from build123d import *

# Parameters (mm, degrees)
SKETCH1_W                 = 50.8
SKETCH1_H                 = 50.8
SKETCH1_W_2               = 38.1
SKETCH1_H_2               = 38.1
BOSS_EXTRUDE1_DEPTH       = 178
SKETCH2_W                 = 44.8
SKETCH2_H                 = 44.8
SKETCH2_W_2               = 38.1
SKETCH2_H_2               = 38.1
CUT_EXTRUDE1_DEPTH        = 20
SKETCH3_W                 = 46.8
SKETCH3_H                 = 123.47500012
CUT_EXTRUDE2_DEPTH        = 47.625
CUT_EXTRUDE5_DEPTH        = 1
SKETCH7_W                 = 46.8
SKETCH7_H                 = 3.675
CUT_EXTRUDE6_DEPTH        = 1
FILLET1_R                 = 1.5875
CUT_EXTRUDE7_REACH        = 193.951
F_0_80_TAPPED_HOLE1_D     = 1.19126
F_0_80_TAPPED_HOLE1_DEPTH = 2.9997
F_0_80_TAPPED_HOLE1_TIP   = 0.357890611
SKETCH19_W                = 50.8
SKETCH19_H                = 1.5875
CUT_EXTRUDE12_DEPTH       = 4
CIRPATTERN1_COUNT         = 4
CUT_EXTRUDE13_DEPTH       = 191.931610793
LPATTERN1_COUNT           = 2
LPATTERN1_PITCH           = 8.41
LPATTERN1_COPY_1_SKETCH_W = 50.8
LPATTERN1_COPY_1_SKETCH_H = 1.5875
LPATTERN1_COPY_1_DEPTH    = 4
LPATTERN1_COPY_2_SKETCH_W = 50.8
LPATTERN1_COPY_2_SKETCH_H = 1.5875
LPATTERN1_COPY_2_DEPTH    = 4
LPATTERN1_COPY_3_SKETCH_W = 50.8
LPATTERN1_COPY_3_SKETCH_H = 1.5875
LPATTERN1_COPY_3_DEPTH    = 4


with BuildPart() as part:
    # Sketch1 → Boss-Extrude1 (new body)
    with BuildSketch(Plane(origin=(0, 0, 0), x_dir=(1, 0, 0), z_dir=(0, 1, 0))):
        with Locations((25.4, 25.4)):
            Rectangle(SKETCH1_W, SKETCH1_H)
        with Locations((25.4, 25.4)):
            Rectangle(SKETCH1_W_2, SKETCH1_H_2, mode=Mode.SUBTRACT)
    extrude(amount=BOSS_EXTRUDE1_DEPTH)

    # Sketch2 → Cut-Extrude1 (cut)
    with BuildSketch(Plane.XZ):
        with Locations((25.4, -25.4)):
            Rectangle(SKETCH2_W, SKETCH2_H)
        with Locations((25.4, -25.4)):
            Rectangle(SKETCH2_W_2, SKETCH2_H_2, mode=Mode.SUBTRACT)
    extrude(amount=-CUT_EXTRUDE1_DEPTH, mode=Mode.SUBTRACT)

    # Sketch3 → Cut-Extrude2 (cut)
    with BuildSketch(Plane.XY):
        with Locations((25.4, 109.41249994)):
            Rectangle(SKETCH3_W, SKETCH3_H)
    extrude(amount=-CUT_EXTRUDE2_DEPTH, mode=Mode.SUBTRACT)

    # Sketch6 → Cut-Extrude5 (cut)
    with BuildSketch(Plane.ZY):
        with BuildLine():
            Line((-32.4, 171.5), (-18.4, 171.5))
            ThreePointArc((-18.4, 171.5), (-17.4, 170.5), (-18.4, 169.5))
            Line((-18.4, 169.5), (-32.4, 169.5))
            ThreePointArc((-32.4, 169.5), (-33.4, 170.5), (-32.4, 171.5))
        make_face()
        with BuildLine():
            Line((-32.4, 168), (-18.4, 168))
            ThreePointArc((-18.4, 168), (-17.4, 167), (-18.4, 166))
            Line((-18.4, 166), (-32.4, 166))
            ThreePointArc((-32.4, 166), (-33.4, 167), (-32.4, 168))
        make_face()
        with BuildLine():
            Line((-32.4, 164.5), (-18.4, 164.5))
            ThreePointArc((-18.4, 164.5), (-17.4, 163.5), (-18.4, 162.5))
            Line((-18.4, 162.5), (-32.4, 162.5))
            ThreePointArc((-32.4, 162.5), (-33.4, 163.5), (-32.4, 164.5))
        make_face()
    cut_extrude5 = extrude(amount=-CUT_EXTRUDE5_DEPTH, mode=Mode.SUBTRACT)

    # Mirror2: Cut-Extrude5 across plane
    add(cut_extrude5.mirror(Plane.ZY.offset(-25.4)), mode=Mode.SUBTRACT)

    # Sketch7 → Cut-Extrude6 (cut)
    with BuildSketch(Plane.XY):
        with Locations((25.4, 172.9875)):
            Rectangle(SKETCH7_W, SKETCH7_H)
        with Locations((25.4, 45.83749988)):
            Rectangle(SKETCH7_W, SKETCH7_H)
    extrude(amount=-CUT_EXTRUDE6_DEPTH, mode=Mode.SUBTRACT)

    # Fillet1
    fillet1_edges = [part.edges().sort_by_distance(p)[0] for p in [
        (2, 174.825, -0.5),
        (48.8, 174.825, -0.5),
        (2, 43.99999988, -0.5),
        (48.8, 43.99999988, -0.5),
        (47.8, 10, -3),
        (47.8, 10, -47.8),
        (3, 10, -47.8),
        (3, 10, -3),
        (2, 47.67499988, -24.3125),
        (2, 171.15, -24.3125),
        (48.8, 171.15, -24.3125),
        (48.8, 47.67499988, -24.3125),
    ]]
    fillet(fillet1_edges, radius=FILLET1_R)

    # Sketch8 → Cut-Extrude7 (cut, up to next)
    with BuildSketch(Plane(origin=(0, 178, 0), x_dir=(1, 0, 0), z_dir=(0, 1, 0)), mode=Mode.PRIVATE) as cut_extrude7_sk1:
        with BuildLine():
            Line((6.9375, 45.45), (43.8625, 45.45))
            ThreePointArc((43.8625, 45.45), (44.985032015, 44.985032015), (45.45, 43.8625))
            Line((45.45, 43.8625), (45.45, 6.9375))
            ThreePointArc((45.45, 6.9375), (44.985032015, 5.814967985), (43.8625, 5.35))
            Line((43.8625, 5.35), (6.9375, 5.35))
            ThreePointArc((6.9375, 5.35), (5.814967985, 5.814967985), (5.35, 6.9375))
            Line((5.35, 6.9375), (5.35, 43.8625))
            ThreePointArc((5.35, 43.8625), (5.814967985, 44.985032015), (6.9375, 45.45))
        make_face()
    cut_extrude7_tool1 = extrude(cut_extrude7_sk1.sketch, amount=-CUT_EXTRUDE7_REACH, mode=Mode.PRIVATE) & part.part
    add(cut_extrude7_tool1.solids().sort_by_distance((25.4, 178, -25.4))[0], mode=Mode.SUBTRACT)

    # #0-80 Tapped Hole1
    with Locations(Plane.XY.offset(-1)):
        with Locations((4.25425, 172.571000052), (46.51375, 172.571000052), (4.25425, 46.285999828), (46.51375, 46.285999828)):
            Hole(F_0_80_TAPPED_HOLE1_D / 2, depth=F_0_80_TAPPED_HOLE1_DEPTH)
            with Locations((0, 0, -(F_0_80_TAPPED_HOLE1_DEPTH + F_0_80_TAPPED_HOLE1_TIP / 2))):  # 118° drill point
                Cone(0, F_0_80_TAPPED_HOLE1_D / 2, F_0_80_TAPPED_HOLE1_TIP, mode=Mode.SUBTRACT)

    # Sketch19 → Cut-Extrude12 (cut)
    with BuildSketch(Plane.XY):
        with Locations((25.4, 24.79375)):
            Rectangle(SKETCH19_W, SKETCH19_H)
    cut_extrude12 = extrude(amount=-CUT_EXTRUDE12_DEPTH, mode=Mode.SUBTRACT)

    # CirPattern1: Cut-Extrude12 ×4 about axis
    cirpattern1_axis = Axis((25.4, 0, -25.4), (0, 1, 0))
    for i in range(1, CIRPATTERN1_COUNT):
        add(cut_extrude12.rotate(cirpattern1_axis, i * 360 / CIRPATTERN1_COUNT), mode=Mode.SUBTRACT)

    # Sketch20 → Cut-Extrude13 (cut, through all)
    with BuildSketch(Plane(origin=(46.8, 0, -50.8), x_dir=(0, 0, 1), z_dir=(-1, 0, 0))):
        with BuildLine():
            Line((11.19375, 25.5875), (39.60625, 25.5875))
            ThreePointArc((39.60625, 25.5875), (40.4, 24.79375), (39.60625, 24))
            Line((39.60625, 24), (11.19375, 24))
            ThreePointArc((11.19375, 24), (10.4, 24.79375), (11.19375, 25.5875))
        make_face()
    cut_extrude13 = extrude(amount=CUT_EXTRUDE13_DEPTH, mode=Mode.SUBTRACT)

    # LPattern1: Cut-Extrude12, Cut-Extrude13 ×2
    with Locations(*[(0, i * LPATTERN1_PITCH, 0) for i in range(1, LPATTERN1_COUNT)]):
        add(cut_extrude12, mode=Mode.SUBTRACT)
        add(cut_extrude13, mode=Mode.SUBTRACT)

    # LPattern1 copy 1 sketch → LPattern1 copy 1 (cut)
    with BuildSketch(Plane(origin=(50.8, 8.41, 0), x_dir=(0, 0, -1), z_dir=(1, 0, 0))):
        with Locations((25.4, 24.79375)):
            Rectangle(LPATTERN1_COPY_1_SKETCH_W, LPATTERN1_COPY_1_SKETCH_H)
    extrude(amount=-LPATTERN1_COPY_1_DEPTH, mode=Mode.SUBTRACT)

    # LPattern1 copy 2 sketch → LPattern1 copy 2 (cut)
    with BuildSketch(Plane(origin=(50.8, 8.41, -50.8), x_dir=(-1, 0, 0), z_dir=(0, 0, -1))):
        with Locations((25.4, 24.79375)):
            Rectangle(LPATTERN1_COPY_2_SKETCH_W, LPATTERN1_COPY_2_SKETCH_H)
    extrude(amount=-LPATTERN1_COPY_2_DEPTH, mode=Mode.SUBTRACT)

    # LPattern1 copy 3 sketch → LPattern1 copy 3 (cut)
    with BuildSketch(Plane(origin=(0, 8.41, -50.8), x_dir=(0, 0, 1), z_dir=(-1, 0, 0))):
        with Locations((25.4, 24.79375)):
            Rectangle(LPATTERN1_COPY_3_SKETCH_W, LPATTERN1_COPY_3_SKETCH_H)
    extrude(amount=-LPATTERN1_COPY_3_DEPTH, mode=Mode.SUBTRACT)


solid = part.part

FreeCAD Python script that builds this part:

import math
import FreeCAD as App
import Part
import Sketcher

V = App.Vector
Q = App.Units.Quantity


def edges_at(feature, points):
    """Names of the edges that pass closest to the given points."""
    edges = feature.Shape.Edges
    near = lambda p: min(range(len(edges)), key=lambda i: edges[i].distToShape(Part.Vertex(*p))[0])
    return sorted({f"Edge{near(p) + 1}" for p in points})


def add_polygon(sketch, points):
    """Adds a closed chain of lines whose ends are joined by coincident constraints."""
    first, n = sketch.GeometryCount, len(points)
    for a, b in zip(points, points[1:] + points[:1]):
        sketch.addGeometry(Part.LineSegment(App.Vector(*a, 0), App.Vector(*b, 0)), False)
    for i in range(n):
        sketch.addConstraint(Sketcher.Constraint("Coincident", first + i, 2, first + (i + 1) % n, 1))

doc = App.newDocument("Part")
body = doc.addObject("PartDesign::Body", "Body")

# Sketch on XZ plane
sketch1 = body.newObject("Sketcher::SketchObject", "Sketch")
sketch1.AttachmentSupport = (doc.getObject("XZ_Plane"), [""])
sketch1.MapMode = "FlatFace"
add_polygon(sketch1, [(0, -51), (0, 0), (51, 0), (51, -51)])  # lines 0-3
add_polygon(sketch1, [(44, -6), (6, -6), (6, -44), (44, -44)])  # lines 4-7
sketch1.addConstraint([
    Sketcher.Constraint("Vertical", 0),
    Sketcher.Constraint("Horizontal", 1),
    Sketcher.Constraint("Vertical", 2),
    Sketcher.Constraint("Horizontal", 3),
    Sketcher.Constraint("Horizontal", 4),
    Sketcher.Constraint("Vertical", 5),
    Sketcher.Constraint("Horizontal", 6),
    Sketcher.Constraint("Vertical", 7),
    Sketcher.Constraint("Coincident", 0, 2, -1, 1),
    Sketcher.Constraint("Equal", 3, 0),
    Sketcher.Constraint("Equal", 6, 5),
    Sketcher.Constraint("DistanceX", 1, 1, 1, 2, Q("50.8 mm")),
    Sketcher.Constraint("DistanceX", 4, 2, 4, 1, Q("38.1 mm")),
    Sketcher.Constraint("DistanceX", -1, 1, 4, 2, Q("6.35 mm")),
    Sketcher.Constraint("DistanceY", 4, 2, -1, 1, Q("6.35 mm")),
])
pad1 = body.newObject("PartDesign::Pad", "Pad")
pad1.Profile = sketch1
pad1.Length = 178
pad1.Reversed = True

# Sketch on XZ plane
sketch2 = body.newObject("Sketcher::SketchObject", "Sketch001")
sketch2.AttachmentSupport = (doc.getObject("XZ_Plane"), [""])
sketch2.MapMode = "FlatFace"
add_polygon(sketch2, [(3, -3), (3, -48), (48, -48), (48, -3)])  # lines 0-3
add_polygon(sketch2, [(44, -44), (6, -44), (6, -6), (44, -6)])  # lines 4-7
sketch2.addConstraint([
    Sketcher.Constraint("Vertical", 0),
    Sketcher.Constraint("Horizontal", 1),
    Sketcher.Constraint("Vertical", 2),
    Sketcher.Constraint("Horizontal", 3),
    Sketcher.Constraint("Horizontal", 4),
    Sketcher.Constraint("Vertical", 5),
    Sketcher.Constraint("Horizontal", 6),
    Sketcher.Constraint("Vertical", 7),
    Sketcher.Constraint("Equal", 3, 0),
    Sketcher.Constraint("Equal", 6, 5),
    Sketcher.Constraint("DistanceX", 1, 1, 1, 2, Q("44.8 mm")),
    Sketcher.Constraint("DistanceX", 4, 2, 4, 1, Q("38.1 mm")),
    Sketcher.Constraint("DistanceX", -1, 1, 0, 2, Q("3 mm")),
    Sketcher.Constraint("DistanceY", 2, 2, -1, 1, Q("3 mm")),
    Sketcher.Constraint("DistanceX", -1, 1, 4, 2, Q("6.35 mm")),
    Sketcher.Constraint("DistanceY", 4, 2, -1, 1, Q("44.45 mm")),
])
pocket1 = body.newObject("PartDesign::Pocket", "Pocket")
pocket1.Profile = sketch2
pocket1.Length = 20

# Sketch on XY plane
sketch3 = body.newObject("Sketcher::SketchObject", "Sketch002")
sketch3.AttachmentSupport = (doc.getObject("XY_Plane"), [""])
sketch3.MapMode = "FlatFace"
add_polygon(sketch3, [(2, 171), (2, 48), (49, 48), (49, 171)])  # lines 0-3
sketch3.addConstraint([
    Sketcher.Constraint("Vertical", 0),
    Sketcher.Constraint("Horizontal", 1),
    Sketcher.Constraint("Vertical", 2),
    Sketcher.Constraint("Horizontal", 3),
    Sketcher.Constraint("DistanceX", 1, 1, 1, 2, Q("46.8 mm")),
    Sketcher.Constraint("DistanceX", -1, 1, 0, 2, Q("2 mm")),
    Sketcher.Constraint("DistanceY", 0, 2, 0, 1, Q("123.475 mm")),
    Sketcher.Constraint("DistanceY", -1, 1, 2, 2, Q("171.15 mm")),
])
pocket2 = body.newObject("PartDesign::Pocket", "Pocket001")
pocket2.Profile = sketch3
pocket2.Length = 47.625

# Sketch on YZ plane
sketch4 = body.newObject("Sketcher::SketchObject", "Sketch003")
sketch4.AttachmentSupport = (doc.getObject("YZ_Plane"), [""])
sketch4.MapMode = "FlatFace"
sketch4.addGeometry([
    Part.LineSegment(V(171.5, -18.4, 0), V(171.5, -32.4, 0)),  # 0
    Part.ArcOfCircle(Part.Circle(V(170.5, -32.4, 0), V(0, 0, 1), 1), math.radians(180), math.radians(360)),  # 1
    Part.LineSegment(V(169.5, -32.4, 0), V(169.5, -18.4, 0)),  # 2
    Part.ArcOfCircle(Part.Circle(V(170.5, -18.4, 0), V(0, 0, 1), 1), math.radians(0), math.radians(180)),  # 3
    Part.LineSegment(V(168, -18.4, 0), V(168, -32.4, 0)),  # 4
    Part.ArcOfCircle(Part.Circle(V(167, -32.4, 0), V(0, 0, 1), 1), math.radians(180), math.radians(360)),  # 5
    Part.LineSegment(V(166, -32.4, 0), V(166, -18.4, 0)),  # 6
    Part.ArcOfCircle(Part.Circle(V(167, -18.4, 0), V(0, 0, 1), 1), math.radians(0), math.radians(180)),  # 7
    Part.LineSegment(V(164.5, -18.4, 0), V(164.5, -32.4, 0)),  # 8
    Part.ArcOfCircle(Part.Circle(V(163.5, -32.4, 0), V(0, 0, 1), 1), math.radians(180), math.radians(360)),  # 9
    Part.LineSegment(V(162.5, -32.4, 0), V(162.5, -18.4, 0)),  # 10
    Part.ArcOfCircle(Part.Circle(V(163.5, -18.4, 0), V(0, 0, 1), 1), math.radians(0), math.radians(180)),  # 11
], False)
sketch4.addConstraint([
    Sketcher.Constraint("Tangent", 0, 2, 1, 2),
    Sketcher.Constraint("Tangent", 1, 1, 2, 1),
    Sketcher.Constraint("Tangent", 2, 2, 3, 2),
    Sketcher.Constraint("Tangent", 3, 1, 0, 1),
    Sketcher.Constraint("Tangent", 4, 2, 5, 2),
    Sketcher.Constraint("Tangent", 5, 1, 6, 1),
    Sketcher.Constraint("Tangent", 6, 2, 7, 2),
    Sketcher.Constraint("Tangent", 7, 1, 4, 1),
    Sketcher.Constraint("Tangent", 8, 2, 9, 2),
    Sketcher.Constraint("Tangent", 9, 1, 10, 1),
    Sketcher.Constraint("Tangent", 10, 2, 11, 2),
    Sketcher.Constraint("Tangent", 11, 1, 8, 1),
    Sketcher.Constraint("Vertical", 0),
    Sketcher.Constraint("Vertical", 2),
    Sketcher.Constraint("Vertical", 4),
    Sketcher.Constraint("Vertical", 6),
    Sketcher.Constraint("Vertical", 8),
    Sketcher.Constraint("Vertical", 10),
    Sketcher.Constraint("Equal", 3, 5),
    Sketcher.Constraint("Equal", 7, 9),
    Sketcher.Constraint("Horizontal", 1, 3, 5, 3),
    Sketcher.Constraint("Horizontal", 3, 3, 7, 3),
    Sketcher.Constraint("Horizontal", 5, 3, 9, 3),
    Sketcher.Constraint("Horizontal", 7, 3, 11, 3),
    Sketcher.Constraint("Radius", 1, Q("1 mm")),
    Sketcher.Constraint("DistanceY", 0, 2, 0, 1, Q("14 mm")),
    Sketcher.Constraint("DistanceX", -1, 1, 5, 3, Q("167 mm")),
    Sketcher.Constraint("DistanceX", 9, 3, 1, 3, Q("7 mm")),
    Sketcher.Constraint("DistanceX", -1, 1, 1, 3, Q("170.5 mm")),
    Sketcher.Constraint("DistanceY", 1, 3, -1, 1, Q("32.4 mm")),
])
pocket3 = body.newObject("PartDesign::Pocket", "Pocket002")
pocket3.Profile = sketch4
pocket3.Length = 1
pocket3.Reversed = True
doc.recompute()

datumplane = body.newObject("PartDesign::Plane", "DatumPlane")
datumplane.AttachmentSupport = (doc.getObject("YZ_Plane"), [""])
datumplane.MapMode = "FlatFace"
datumplane.AttachmentOffset = App.Placement(V(0, 0, 25.4), App.Rotation())
mirrored = body.newObject("PartDesign::Mirrored", "Mirrored")
mirrored.Originals = [pocket3]
mirrored.MirrorPlane = (datumplane, [""])
body.Tip = mirrored

# Sketch on XY plane
sketch5 = body.newObject("Sketcher::SketchObject", "Sketch004")
sketch5.AttachmentSupport = (doc.getObject("XY_Plane"), [""])
sketch5.MapMode = "FlatFace"
add_polygon(sketch5, [(2, 174.8), (2, 171.2), (48.8, 171.2), (48.8, 174.8)])  # lines 0-3
add_polygon(sketch5, [(2, 47.7), (2, 44), (48.8, 44), (48.8, 47.7)])  # lines 4-7
sketch5.addConstraint([
    Sketcher.Constraint("Vertical", 0),
    Sketcher.Constraint("Horizontal", 1),
    Sketcher.Constraint("Vertical", 2),
    Sketcher.Constraint("Horizontal", 3),
    Sketcher.Constraint("Vertical", 4),
    Sketcher.Constraint("Horizontal", 5),
    Sketcher.Constraint("Vertical", 6),
    Sketcher.Constraint("Horizontal", 7),
    Sketcher.Constraint("Vertical", 3, 2, 4, 2),
    Sketcher.Constraint("Vertical", 2, 2, 5, 2),
    Sketcher.Constraint("Equal", 2, 4),
    Sketcher.Constraint("DistanceX", 1, 1, 1, 2, Q("46.8 mm")),
    Sketcher.Constraint("DistanceX", -1, 1, 0, 2, Q("2 mm")),
    Sketcher.Constraint("DistanceY", -1, 1, 4, 2, Q("44 mm")),
    Sketcher.Constraint("DistanceY", 0, 2, 0, 1, Q("3.675 mm")),
    Sketcher.Constraint("DistanceY", -1, 1, 0, 2, Q("171.15 mm")),
])
pocket4 = body.newObject("PartDesign::Pocket", "Pocket003")
pocket4.Profile = sketch5
pocket4.Length = 1
doc.recompute()

fillet = body.newObject("PartDesign::Fillet", "Fillet")
fillet.Base = (pocket4, edges_at(pocket4, [
    (2, 174.825, -0.5),
    (48.8, 174.825, -0.5),
    (2, 44, -0.5),
    (48.8, 44, -0.5),
    (47.8, 10, -3),
    (47.8, 10, -47.8),
    (3, 10, -47.8),
    (3, 10, -3),
    (2, 47.675, -24.312),
    (2, 171.15, -24.312),
    (48.8, 171.15, -24.312),
    (48.8, 47.675, -24.312),
]))
fillet.Radius = 1.5875

# Sketch on XZ plane
sketch6 = body.newObject("Sketcher::SketchObject", "Sketch005")
sketch6.AttachmentSupport = (doc.getObject("XZ_Plane"), [""])
sketch6.MapMode = "FlatFace"
sketch6.AttachmentOffset = App.Placement(V(0, 0, -178), App.Rotation())
sketch6.addGeometry([
    Part.LineSegment(V(43.9, -45.5, 0), V(6.9, -45.5, 0)),  # 0
    Part.ArcOfCircle(Part.Circle(V(6.9, -43.9, 0), V(0, 0, 1), 1.6), math.radians(180), math.radians(270)),  # 1
    Part.LineSegment(V(5.3, -43.9, 0), V(5.3, -6.9, 0)),  # 2
    Part.ArcOfCircle(Part.Circle(V(6.9, -6.9, 0), V(0, 0, 1), 1.6), math.radians(90), math.radians(180)),  # 3
    Part.LineSegment(V(6.9, -5.3, 0), V(43.9, -5.3, 0)),  # 4
    Part.ArcOfCircle(Part.Circle(V(43.9, -6.9, 0), V(0, 0, 1), 1.6), math.radians(0), math.radians(90)),  # 5
    Part.LineSegment(V(45.5, -6.9, 0), V(45.5, -43.9, 0)),  # 6
    Part.ArcOfCircle(Part.Circle(V(43.9, -43.9, 0), V(0, 0, 1), 1.6), math.radians(-90), math.radians(0)),  # 7
], False)
sketch6.addConstraint([
    Sketcher.Constraint("Tangent", 0, 2, 1, 2),
    Sketcher.Constraint("Tangent", 1, 1, 2, 1),
    Sketcher.Constraint("Tangent", 2, 2, 3, 2),
    Sketcher.Constraint("Tangent", 3, 1, 4, 1),
    Sketcher.Constraint("Tangent", 4, 2, 5, 2),
    Sketcher.Constraint("Tangent", 5, 1, 6, 1),
    Sketcher.Constraint("Tangent", 6, 2, 7, 2),
    Sketcher.Constraint("Tangent", 7, 1, 0, 1),
    Sketcher.Constraint("Horizontal", 0),
    Sketcher.Constraint("Vertical", 2),
    Sketcher.Constraint("Horizontal", 4),
    Sketcher.Constraint("Vertical", 6),
    Sketcher.Constraint("Equal", 1, 3),
    Sketcher.Constraint("Equal", 3, 5),
    Sketcher.Constraint("Equal", 5, 7),
    Sketcher.Constraint("Equal", 4, 2),
    Sketcher.Constraint("Radius", 1, Q("1.5875 mm")),
    Sketcher.Constraint("DistanceX", 0, 2, 0, 1, Q("36.925 mm")),
    Sketcher.Constraint("DistanceY", 0, 2, -1, 1, Q("45.45 mm")),
    Sketcher.Constraint("DistanceX", -1, 1, 1, 1, Q("5.35 mm")),
])
pocket5 = body.newObject("PartDesign::Pocket", "Pocket004")
pocket5.Profile = sketch6
pocket5.Length = 6.85
pocket5.Reversed = True

# Sketch on XY plane
sketch7 = body.newObject("Sketcher::SketchObject", "Sketch006")
sketch7.AttachmentSupport = (doc.getObject("XY_Plane"), [""])
sketch7.MapMode = "FlatFace"
sketch7.AttachmentOffset = App.Placement(V(0, 0, -1), App.Rotation())
sketch7.addGeometry([
    Part.Circle(V(4.3, 172.6, 0), V(0, 0, 1), 0.6),
    Part.Circle(V(46.5, 172.6, 0), V(0, 0, 1), 0.6),
    Part.Circle(V(4.3, 46.3, 0), V(0, 0, 1), 0.6),
    Part.Circle(V(46.5, 46.3, 0), V(0, 0, 1), 0.6),
], False)
sketch7.addConstraint([
    Sketcher.Constraint("Equal", 0, 1),
    Sketcher.Constraint("Equal", 1, 2),
    Sketcher.Constraint("Equal", 2, 3),
    Sketcher.Constraint("Horizontal", 0, 3, 1, 3),
    Sketcher.Constraint("Horizontal", 2, 3, 3, 3),
    Sketcher.Constraint("Vertical", 0, 3, 2, 3),
    Sketcher.Constraint("Vertical", 1, 3, 3, 3),
    Sketcher.Constraint("Diameter", 0, Q("1.19126 mm")),
    Sketcher.Constraint("DistanceY", -1, 1, 0, 3, Q("172.571 mm")),
    Sketcher.Constraint("DistanceY", -1, 1, 2, 3, Q("46.286 mm")),
    Sketcher.Constraint("DistanceX", 0, 3, 1, 3, Q("42.2595 mm")),
    Sketcher.Constraint("DistanceX", -1, 1, 0, 3, Q("4.25425 mm")),
])
doc.recompute()
hole = body.newObject("PartDesign::Hole", "Hole")
hole.Profile = sketch7
hole.ThreadType = "None"
hole.Diameter = 1.19126
hole.DepthType = "Dimension"
hole.Depth = 2.9997
hole.DrillPoint = "Angled"
hole.DrillPointAngle = 118

# Sketch on XY plane
sketch8 = body.newObject("Sketcher::SketchObject", "Sketch007")
sketch8.AttachmentSupport = (doc.getObject("XY_Plane"), [""])
sketch8.MapMode = "FlatFace"
add_polygon(sketch8, [(0, 25.6), (0, 24), (50.8, 24), (50.8, 25.6)])  # lines 0-3
sketch8.addConstraint([
    Sketcher.Constraint("Vertical", 0),
    Sketcher.Constraint("Horizontal", 1),
    Sketcher.Constraint("Vertical", 2),
    Sketcher.Constraint("Horizontal", 3),
    Sketcher.Constraint("PointOnObject", 0, 2, -2),
    Sketcher.Constraint("DistanceX", 1, 1, 1, 2, Q("50.8 mm")),
    Sketcher.Constraint("DistanceY", -1, 1, 0, 2, Q("24 mm")),
    Sketcher.Constraint("DistanceY", 0, 2, 0, 1, Q("1.5875 mm")),
])
pocket6 = body.newObject("PartDesign::Pocket", "Pocket005")
pocket6.Profile = sketch8
pocket6.Length = 4
doc.recompute()

datumline = body.newObject("PartDesign::Line", "DatumLine")
datumline.Placement = App.Placement(V(25.4, 0, -25.4), App.Rotation(V(0, 0, 1), V(0, 1, 0)))
polarpattern = body.newObject("PartDesign::PolarPattern", "PolarPattern")
polarpattern.Originals = [pocket6]
polarpattern.Axis = (datumline, [""])
polarpattern.Angle = 360
polarpattern.Occurrences = 4
body.Tip = polarpattern

# Sketch on YZ plane
sketch9 = body.newObject("Sketcher::SketchObject", "Sketch008")
sketch9.AttachmentSupport = (doc.getObject("YZ_Plane"), [""])
sketch9.MapMode = "FlatFace"
sketch9.AttachmentOffset = App.Placement(V(0, 0, 46.8), App.Rotation())
sketch9.addGeometry([
    Part.LineSegment(V(25.6, -11.2, 0), V(25.6, -39.6, 0)),
    Part.ArcOfCircle(Part.Circle(V(24.8, -39.6, 0), V(0, 0, 1), 0.8), math.radians(180), math.radians(360)),
    Part.LineSegment(V(24, -39.6, 0), V(24, -11.2, 0)),
    Part.ArcOfCircle(Part.Circle(V(24.8, -11.2, 0), V(0, 0, 1), 0.8), math.radians(0), math.radians(180)),
], False)
sketch9.addConstraint([
    Sketcher.Constraint("Tangent", 0, 2, 1, 2),
    Sketcher.Constraint("Tangent", 1, 1, 2, 1),
    Sketcher.Constraint("Tangent", 2, 2, 3, 2),
    Sketcher.Constraint("Tangent", 3, 1, 0, 1),
    Sketcher.Constraint("Vertical", 0),
    Sketcher.Constraint("Vertical", 2),
    Sketcher.Constraint("DistanceX", -1, 1, 1, 1, Q("24 mm")),
    Sketcher.Constraint("Radius", 1, Q("0.79375 mm")),
    Sketcher.Constraint("DistanceY", 0, 2, 0, 1, Q("28.4125 mm")),
    Sketcher.Constraint("DistanceY", 1, 3, -1, 1, Q("39.60625 mm")),
])
pocket7 = body.newObject("PartDesign::Pocket", "Pocket006")
pocket7.Profile = sketch9
pocket7.Type = "ThroughAll"
doc.recompute()

linearpattern = body.newObject("PartDesign::LinearPattern", "LinearPattern")
linearpattern.Originals = [pocket6, pocket7]
linearpattern.Direction = (doc.getObject("Y_Axis"), [""])
linearpattern.Mode = "offset"
linearpattern.Offset = 8.41
linearpattern.Occurrences = 2
body.Tip = linearpattern

# Sketch on YZ plane
sketch10 = body.newObject("Sketcher::SketchObject", "Sketch009")
sketch10.AttachmentSupport = (doc.getObject("YZ_Plane"), [""])
sketch10.MapMode = "FlatFace"
sketch10.AttachmentOffset = App.Placement(V(0, 0, 50.8), App.Rotation())
add_polygon(sketch10, [(34, 0), (32.4, 0), (32.4, -50.8), (34, -50.8)])  # lines 0-3
sketch10.addConstraint([
    Sketcher.Constraint("Horizontal", 0),
    Sketcher.Constraint("Vertical", 1),
    Sketcher.Constraint("Horizontal", 2),
    Sketcher.Constraint("Vertical", 3),
    Sketcher.Constraint("PointOnObject", 0, 2, -1),
    Sketcher.Constraint("DistanceY", 1, 2, 1, 1, Q("50.8 mm")),
    Sketcher.Constraint("DistanceX", -1, 1, 0, 2, Q("32.41 mm")),
    Sketcher.Constraint("DistanceX", 0, 2, 0, 1, Q("1.5875 mm")),
])
pocket8 = body.newObject("PartDesign::Pocket", "Pocket007")
pocket8.Profile = sketch10
pocket8.Length = 4

# Sketch on XY plane
sketch11 = body.newObject("Sketcher::SketchObject", "Sketch010")
sketch11.AttachmentSupport = (doc.getObject("XY_Plane"), [""])
sketch11.MapMode = "FlatFace"
sketch11.AttachmentOffset = App.Placement(V(0, 0, -50.8), App.Rotation())
add_polygon(sketch11, [(50.8, 34), (50.8, 32.4), (0, 32.4), (0, 34)])  # lines 0-3
sketch11.addConstraint([
    Sketcher.Constraint("Vertical", 0),
    Sketcher.Constraint("Horizontal", 1),
    Sketcher.Constraint("Vertical", 2),
    Sketcher.Constraint("Horizontal", 3),
    Sketcher.Constraint("PointOnObject", 1, 2, -2),
    Sketcher.Constraint("DistanceX", 1, 2, 1, 1, Q("50.8 mm")),
    Sketcher.Constraint("DistanceY", -1, 1, 0, 2, Q("32.41 mm")),
    Sketcher.Constraint("DistanceY", 0, 2, 0, 1, Q("1.5875 mm")),
])
pocket9 = body.newObject("PartDesign::Pocket", "Pocket008")
pocket9.Profile = sketch11
pocket9.Length = 4
pocket9.Reversed = True

# Sketch on YZ plane
sketch12 = body.newObject("Sketcher::SketchObject", "Sketch011")
sketch12.AttachmentSupport = (doc.getObject("YZ_Plane"), [""])
sketch12.MapMode = "FlatFace"
add_polygon(sketch12, [(34, -50.8), (32.4, -50.8), (32.4, 0), (34, 0)])  # lines 0-3
sketch12.addConstraint([
    Sketcher.Constraint("Horizontal", 0),
    Sketcher.Constraint("Vertical", 1),
    Sketcher.Constraint("Horizontal", 2),
    Sketcher.Constraint("Vertical", 3),
    Sketcher.Constraint("PointOnObject", 1, 2, -1),
    Sketcher.Constraint("DistanceY", 1, 1, 1, 2, Q("50.8 mm")),
    Sketcher.Constraint("DistanceX", -1, 1, 0, 2, Q("32.41 mm")),
    Sketcher.Constraint("DistanceX", 0, 2, 0, 1, Q("1.5875 mm")),
])
pocket10 = body.newObject("PartDesign::Pocket", "Pocket009")
pocket10.Profile = sketch12
pocket10.Length = 4
pocket10.Reversed = True

doc.recompute()
